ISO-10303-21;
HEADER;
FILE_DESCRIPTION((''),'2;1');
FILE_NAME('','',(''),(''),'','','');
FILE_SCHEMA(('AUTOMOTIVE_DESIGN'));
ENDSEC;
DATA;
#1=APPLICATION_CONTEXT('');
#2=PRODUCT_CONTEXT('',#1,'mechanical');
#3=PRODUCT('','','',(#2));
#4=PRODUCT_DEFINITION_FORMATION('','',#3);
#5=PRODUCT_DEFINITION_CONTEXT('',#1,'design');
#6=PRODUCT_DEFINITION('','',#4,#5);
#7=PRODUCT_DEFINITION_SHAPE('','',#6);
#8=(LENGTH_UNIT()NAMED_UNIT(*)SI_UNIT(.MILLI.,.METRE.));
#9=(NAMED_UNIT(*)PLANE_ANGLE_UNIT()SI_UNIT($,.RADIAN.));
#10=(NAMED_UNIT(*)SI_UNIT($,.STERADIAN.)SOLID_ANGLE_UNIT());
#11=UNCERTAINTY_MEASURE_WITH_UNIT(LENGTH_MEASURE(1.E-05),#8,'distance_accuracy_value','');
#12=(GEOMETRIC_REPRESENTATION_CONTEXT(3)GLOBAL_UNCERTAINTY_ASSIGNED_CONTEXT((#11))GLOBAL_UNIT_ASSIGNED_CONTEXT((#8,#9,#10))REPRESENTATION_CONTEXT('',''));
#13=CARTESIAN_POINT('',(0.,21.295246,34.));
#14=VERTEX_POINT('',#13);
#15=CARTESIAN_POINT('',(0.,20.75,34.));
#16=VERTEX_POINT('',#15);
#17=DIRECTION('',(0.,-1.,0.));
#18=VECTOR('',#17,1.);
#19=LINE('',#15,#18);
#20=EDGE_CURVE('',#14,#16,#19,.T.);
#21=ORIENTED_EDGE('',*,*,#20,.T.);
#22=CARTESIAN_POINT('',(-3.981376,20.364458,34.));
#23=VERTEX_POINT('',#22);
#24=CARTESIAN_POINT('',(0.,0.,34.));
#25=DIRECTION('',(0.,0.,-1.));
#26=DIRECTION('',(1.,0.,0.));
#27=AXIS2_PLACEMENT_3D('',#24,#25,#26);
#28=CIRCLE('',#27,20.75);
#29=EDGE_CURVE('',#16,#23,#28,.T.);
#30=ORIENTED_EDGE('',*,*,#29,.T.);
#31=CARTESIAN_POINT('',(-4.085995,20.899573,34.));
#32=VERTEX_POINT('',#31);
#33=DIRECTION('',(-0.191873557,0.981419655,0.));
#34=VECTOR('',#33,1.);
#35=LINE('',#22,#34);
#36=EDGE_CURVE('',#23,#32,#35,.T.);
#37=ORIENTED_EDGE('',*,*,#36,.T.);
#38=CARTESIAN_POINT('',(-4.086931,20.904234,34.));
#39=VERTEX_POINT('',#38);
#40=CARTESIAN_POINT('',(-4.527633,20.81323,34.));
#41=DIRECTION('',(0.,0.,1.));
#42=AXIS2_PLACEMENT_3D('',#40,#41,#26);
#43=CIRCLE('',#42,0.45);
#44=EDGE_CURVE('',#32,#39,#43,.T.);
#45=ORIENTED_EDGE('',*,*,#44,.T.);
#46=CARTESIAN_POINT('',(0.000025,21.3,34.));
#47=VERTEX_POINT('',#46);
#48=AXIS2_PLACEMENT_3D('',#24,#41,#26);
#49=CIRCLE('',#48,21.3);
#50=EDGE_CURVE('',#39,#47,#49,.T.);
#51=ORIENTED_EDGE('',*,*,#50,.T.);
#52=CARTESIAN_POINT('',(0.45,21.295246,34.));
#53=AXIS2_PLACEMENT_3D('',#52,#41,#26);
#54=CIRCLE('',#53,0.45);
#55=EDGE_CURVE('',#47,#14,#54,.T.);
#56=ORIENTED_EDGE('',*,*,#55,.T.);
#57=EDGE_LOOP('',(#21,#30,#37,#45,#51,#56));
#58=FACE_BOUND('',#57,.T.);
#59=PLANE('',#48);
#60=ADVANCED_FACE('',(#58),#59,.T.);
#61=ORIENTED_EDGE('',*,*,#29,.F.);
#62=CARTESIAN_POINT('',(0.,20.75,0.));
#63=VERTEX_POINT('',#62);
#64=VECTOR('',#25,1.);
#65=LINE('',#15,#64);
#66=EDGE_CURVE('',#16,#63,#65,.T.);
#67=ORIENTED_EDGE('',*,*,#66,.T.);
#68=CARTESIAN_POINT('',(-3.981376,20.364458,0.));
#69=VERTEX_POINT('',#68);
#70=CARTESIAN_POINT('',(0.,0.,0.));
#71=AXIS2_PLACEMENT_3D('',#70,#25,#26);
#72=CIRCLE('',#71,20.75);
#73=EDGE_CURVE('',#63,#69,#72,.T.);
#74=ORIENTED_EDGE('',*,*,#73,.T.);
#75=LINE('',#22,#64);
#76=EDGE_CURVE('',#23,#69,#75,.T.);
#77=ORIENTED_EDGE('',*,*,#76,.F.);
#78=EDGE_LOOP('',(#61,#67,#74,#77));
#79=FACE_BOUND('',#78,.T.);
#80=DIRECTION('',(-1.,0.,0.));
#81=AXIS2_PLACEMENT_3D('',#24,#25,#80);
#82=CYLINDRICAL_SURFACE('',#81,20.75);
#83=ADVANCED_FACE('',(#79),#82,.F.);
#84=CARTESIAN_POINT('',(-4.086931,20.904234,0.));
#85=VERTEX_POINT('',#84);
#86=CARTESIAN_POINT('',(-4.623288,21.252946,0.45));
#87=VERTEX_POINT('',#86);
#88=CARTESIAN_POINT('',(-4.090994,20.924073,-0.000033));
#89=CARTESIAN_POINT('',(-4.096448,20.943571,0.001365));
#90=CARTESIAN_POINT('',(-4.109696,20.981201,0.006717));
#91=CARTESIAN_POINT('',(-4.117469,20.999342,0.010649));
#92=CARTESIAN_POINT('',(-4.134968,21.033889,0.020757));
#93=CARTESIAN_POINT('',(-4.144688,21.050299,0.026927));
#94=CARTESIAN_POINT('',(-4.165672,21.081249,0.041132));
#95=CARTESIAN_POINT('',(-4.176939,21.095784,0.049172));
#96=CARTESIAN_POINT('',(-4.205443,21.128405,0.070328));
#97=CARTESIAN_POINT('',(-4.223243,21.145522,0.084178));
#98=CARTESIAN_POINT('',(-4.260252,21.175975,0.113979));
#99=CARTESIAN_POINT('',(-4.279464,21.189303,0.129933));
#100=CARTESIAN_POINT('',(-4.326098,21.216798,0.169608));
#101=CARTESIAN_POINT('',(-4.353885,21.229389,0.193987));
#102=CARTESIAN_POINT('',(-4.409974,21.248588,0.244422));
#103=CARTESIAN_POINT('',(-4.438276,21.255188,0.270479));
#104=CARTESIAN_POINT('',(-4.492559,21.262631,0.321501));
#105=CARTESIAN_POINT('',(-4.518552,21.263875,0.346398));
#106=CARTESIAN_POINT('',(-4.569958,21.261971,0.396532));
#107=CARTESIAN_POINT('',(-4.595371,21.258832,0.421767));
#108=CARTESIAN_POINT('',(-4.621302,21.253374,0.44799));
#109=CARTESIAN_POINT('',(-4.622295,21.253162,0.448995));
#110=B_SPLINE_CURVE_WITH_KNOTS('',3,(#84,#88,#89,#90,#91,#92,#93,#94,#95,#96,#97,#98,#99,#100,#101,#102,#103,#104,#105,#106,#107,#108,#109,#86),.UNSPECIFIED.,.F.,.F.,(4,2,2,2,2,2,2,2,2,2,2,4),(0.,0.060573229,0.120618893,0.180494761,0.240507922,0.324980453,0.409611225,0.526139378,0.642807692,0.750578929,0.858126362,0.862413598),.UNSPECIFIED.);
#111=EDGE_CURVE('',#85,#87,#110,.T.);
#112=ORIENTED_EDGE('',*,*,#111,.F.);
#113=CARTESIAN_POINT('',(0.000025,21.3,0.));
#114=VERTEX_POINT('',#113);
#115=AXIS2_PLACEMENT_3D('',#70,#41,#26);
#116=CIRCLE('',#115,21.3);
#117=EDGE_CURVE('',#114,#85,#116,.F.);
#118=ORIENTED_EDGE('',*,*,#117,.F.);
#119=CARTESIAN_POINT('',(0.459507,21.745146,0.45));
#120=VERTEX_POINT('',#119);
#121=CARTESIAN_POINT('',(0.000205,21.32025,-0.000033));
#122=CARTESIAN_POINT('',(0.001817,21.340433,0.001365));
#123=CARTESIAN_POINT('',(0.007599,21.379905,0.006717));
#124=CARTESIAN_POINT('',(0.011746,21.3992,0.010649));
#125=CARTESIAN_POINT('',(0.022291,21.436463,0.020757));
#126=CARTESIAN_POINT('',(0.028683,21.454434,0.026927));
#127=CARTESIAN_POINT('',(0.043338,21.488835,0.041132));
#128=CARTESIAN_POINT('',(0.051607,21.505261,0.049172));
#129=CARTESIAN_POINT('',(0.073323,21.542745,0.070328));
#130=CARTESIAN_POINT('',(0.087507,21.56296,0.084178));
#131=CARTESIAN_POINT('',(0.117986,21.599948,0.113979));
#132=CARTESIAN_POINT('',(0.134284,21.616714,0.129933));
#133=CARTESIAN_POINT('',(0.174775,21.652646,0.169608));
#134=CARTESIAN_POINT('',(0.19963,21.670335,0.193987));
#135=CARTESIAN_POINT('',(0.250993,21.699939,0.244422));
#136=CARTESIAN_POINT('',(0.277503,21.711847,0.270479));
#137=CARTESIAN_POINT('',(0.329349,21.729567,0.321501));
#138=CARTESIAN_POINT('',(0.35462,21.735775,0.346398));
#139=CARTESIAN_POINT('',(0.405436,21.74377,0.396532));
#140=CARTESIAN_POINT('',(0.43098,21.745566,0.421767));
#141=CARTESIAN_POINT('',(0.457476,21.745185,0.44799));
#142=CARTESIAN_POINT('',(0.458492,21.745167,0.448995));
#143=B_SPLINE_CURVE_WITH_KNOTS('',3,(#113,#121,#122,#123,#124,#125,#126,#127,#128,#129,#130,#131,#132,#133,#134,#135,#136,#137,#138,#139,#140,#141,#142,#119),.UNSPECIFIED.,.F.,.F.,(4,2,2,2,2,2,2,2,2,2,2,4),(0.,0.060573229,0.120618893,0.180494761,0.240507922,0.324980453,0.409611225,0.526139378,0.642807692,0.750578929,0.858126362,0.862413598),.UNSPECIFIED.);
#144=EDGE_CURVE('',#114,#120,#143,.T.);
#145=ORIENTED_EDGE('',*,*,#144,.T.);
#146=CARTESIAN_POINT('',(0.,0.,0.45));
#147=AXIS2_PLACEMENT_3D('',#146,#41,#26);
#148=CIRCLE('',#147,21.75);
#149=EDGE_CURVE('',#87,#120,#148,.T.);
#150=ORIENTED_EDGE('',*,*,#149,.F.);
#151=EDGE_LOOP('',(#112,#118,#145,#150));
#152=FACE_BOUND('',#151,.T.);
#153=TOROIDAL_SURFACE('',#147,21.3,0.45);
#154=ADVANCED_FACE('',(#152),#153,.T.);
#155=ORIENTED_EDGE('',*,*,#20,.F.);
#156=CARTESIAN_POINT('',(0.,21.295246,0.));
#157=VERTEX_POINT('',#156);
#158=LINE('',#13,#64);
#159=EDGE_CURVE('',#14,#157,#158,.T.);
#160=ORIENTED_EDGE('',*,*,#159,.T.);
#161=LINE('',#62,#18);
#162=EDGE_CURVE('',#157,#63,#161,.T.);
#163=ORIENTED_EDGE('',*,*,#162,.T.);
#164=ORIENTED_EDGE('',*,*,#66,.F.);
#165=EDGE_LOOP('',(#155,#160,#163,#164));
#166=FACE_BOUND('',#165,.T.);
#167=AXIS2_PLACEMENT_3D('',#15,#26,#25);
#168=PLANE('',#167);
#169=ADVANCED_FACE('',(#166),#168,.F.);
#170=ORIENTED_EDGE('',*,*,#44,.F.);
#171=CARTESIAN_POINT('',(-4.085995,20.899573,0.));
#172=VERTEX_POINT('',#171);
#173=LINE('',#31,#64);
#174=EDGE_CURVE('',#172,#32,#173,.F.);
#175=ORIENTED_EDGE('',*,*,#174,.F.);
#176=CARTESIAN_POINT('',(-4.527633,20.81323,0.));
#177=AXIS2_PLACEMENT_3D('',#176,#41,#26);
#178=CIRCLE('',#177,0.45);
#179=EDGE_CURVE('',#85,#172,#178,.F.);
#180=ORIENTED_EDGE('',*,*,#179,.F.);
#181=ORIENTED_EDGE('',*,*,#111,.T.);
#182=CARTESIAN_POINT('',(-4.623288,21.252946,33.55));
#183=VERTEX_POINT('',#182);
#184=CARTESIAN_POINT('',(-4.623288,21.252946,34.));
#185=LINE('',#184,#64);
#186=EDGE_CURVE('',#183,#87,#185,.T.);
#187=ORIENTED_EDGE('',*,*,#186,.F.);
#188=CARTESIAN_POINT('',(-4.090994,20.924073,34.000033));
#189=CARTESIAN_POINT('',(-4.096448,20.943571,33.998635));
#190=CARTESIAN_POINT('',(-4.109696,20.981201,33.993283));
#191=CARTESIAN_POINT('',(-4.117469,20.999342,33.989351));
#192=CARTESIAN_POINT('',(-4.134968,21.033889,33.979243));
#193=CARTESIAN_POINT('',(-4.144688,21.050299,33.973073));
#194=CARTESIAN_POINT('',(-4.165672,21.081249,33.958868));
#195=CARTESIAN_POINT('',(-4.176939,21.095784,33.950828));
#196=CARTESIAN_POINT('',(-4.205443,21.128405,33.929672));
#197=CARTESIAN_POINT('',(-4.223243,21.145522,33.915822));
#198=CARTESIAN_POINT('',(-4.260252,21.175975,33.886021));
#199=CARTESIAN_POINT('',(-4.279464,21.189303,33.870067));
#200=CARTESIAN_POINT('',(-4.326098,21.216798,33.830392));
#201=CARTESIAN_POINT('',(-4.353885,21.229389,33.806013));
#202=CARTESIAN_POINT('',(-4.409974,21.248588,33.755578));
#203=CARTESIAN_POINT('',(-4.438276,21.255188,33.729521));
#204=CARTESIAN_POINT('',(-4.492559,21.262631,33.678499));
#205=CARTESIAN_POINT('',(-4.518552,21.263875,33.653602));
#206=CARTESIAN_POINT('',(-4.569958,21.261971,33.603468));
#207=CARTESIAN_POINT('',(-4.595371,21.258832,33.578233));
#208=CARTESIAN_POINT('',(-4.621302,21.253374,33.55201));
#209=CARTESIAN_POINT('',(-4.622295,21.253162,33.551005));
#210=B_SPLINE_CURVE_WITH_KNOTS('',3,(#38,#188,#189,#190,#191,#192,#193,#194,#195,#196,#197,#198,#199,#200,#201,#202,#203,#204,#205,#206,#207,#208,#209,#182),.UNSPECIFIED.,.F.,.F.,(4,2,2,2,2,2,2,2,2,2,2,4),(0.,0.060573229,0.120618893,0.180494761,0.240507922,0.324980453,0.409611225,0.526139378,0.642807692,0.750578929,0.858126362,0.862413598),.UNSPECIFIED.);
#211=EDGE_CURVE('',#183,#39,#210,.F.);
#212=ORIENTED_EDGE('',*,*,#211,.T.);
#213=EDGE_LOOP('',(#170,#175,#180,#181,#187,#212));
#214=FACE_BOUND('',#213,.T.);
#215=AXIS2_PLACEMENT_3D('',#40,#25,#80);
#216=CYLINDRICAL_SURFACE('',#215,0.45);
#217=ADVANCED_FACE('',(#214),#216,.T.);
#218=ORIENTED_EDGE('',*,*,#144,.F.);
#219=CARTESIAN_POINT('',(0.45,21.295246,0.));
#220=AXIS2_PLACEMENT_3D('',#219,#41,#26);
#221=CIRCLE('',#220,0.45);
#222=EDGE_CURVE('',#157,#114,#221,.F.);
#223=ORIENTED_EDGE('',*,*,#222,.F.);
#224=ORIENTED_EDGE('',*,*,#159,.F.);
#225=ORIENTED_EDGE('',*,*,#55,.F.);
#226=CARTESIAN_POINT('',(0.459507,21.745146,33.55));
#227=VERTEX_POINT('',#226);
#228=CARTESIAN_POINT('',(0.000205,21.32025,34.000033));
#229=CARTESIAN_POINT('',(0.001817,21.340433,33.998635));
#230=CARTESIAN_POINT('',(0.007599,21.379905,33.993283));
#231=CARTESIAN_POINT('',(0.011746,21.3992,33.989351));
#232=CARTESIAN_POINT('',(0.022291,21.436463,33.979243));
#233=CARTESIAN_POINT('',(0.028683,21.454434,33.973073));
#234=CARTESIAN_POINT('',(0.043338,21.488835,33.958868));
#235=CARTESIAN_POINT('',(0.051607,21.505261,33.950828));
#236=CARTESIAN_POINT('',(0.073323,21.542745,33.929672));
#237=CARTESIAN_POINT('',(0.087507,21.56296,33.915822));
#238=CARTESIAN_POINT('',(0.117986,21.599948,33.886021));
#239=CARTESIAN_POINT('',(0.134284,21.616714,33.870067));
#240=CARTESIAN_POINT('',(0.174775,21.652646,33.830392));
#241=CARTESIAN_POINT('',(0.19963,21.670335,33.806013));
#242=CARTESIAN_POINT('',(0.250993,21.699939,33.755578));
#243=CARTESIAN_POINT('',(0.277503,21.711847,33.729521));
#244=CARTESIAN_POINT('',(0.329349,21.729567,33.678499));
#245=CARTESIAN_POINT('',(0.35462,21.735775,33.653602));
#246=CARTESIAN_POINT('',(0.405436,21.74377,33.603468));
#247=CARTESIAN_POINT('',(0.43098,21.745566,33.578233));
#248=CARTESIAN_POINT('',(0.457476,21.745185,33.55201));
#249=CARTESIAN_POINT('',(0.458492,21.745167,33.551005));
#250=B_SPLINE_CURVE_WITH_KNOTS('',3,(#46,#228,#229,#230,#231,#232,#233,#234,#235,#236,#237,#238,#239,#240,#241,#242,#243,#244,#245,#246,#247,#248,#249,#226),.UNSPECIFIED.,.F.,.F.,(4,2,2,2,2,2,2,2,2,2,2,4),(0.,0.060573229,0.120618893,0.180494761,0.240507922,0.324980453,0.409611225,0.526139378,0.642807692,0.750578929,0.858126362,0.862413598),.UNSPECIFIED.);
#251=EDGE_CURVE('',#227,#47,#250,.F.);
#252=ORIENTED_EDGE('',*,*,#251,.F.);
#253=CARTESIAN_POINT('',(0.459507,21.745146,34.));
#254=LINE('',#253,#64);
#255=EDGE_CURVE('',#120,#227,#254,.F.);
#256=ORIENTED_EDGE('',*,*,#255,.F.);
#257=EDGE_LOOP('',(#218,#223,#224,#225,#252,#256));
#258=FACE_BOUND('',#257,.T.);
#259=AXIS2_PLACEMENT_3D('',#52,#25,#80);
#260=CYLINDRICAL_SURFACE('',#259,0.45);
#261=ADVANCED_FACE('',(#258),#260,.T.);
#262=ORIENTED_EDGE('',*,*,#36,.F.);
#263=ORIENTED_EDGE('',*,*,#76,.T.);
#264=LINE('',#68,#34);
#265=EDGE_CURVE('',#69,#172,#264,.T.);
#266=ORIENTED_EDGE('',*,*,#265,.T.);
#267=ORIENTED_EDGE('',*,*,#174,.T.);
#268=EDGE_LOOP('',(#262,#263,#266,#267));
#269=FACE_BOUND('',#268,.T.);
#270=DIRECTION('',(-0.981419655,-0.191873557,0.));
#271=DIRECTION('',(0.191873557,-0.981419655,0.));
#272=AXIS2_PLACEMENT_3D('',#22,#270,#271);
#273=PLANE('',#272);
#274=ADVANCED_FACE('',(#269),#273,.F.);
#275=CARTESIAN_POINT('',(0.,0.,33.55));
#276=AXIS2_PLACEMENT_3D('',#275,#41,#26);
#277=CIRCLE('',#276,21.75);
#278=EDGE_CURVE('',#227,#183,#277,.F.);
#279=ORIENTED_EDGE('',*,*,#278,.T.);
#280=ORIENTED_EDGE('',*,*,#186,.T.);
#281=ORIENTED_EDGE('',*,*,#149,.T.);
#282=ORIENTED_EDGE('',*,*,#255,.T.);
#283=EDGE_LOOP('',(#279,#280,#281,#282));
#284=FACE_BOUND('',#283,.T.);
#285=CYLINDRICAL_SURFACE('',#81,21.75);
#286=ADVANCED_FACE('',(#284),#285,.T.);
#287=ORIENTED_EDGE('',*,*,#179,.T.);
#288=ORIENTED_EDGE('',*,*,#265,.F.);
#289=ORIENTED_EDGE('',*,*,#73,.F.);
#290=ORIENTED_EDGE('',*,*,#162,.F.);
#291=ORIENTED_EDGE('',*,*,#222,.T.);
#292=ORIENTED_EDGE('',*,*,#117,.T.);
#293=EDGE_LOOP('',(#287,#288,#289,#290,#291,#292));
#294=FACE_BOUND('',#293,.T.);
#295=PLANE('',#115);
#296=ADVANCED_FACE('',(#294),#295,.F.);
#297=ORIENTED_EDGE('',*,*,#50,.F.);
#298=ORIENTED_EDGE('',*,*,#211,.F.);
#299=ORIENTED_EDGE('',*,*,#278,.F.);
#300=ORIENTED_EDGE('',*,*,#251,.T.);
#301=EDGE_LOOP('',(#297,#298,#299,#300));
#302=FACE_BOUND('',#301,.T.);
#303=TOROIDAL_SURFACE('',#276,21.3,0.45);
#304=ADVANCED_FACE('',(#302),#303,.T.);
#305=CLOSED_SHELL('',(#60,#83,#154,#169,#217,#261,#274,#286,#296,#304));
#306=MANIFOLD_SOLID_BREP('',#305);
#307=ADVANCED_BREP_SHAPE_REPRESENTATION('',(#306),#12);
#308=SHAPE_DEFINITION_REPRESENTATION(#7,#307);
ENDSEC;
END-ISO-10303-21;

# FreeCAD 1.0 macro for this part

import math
import FreeCAD as App
import Part
import Sketcher
Q = App.Units.Quantity


def edges_at(feature, points):
    """Names of the edges that pass closest to the given points."""
    edges = feature.Shape.Edges
    near = lambda p: min(range(len(edges)), key=lambda i: edges[i].distToShape(Part.Vertex(*p))[0])
    return sorted({f"Edge{near(p) + 1}" for p in points})

doc = App.newDocument("Part")
body = doc.addObject("PartDesign::Body", "Body")

# Sketch on XY plane
sketch1 = body.newObject("Sketcher::SketchObject", "Sketch")
sketch1.AttachmentSupport = (doc.getObject("XY_Plane"), [""])
sketch1.MapMode = "FlatFace"
sketch1.addGeometry([
    Part.LineSegment(App.Vector(0, 21.8, 0), App.Vector(0, 20.8, 0)),
    Part.ArcOfCircle(Part.Circle(App.Vector(0, 0, 0), App.Vector(0, 0, 1), 20.8), math.radians(101), math.radians(450)),
    Part.LineSegment(App.Vector(-4, 20.4, 0), App.Vector(-4.2, 21.3, 0)),
    Part.ArcOfCircle(Part.Circle(App.Vector(0, 0, 0), App.Vector(0, 0, 1), 21.8), math.radians(101), math.radians(450)),
], False)
sketch1.addConstraint([
    Sketcher.Constraint("Coincident", 0, 2, 1, 2),
    Sketcher.Constraint("Coincident", 1, 1, 2, 1),
    Sketcher.Constraint("Coincident", 2, 2, 3, 1),
    Sketcher.Constraint("Coincident", 3, 2, 0, 1),
    Sketcher.Constraint("Vertical", 0),
    Sketcher.Constraint("Coincident", 1, 3, -1, 1),
    Sketcher.Constraint("Coincident", 3, 3, -1, 1),
    Sketcher.Constraint("PointOnObject", 0, 2, -2),
    Sketcher.Constraint("DistanceY", 0, 2, 0, 1, Q("1 mm")),
    Sketcher.Constraint("Radius", 1, Q("20.75 mm")),
    Sketcher.Constraint("DistanceX", 2, 2, -1, 1, Q("4.17325 mm")),
    Sketcher.Constraint("DistanceY", 1, 1, 2, 2, Q("0.98142 mm")),
])
pad1 = body.newObject("PartDesign::Pad", "Pad")
pad1.Profile = sketch1
pad1.Length = 34
doc.recompute()

fillet = body.newObject("PartDesign::Fillet", "Fillet")
fillet.Base = (pad1, edges_at(pad1, [
    (2.096, -21.649, 34),
    (2.096, -21.649, 0),
    (0, 21.75, 17),
    (-4.173, 21.346, 17),
]))
fillet.Radius = 0.45

doc.recompute()
